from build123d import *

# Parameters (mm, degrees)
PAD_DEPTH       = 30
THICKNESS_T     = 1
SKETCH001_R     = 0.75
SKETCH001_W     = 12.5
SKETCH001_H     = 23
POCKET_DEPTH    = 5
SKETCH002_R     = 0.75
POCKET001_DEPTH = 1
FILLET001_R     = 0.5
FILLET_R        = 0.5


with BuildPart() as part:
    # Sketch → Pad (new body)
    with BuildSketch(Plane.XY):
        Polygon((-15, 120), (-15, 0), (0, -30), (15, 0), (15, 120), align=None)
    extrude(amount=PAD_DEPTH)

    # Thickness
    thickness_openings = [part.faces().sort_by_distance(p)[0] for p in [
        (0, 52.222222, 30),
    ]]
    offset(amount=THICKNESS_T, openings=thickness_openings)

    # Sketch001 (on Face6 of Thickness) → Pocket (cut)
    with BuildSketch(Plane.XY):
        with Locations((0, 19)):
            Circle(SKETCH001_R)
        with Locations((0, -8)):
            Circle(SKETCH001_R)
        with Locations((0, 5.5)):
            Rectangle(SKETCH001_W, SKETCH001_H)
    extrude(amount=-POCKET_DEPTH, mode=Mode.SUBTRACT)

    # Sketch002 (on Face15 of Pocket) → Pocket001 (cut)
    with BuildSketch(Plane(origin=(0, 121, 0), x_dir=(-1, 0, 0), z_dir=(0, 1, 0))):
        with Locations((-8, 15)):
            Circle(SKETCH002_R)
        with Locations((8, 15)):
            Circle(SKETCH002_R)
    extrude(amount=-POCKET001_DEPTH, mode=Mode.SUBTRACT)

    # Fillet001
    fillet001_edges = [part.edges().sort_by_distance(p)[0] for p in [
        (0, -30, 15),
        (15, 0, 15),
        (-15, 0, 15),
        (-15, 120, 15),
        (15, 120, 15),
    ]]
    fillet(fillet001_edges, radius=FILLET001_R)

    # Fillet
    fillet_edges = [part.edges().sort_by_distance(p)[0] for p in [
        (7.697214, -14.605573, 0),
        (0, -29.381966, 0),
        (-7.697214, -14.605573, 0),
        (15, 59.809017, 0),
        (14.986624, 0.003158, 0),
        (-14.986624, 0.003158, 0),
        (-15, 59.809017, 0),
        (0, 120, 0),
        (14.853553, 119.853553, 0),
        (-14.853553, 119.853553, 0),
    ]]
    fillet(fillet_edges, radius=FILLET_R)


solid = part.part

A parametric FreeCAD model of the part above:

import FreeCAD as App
import Part
import Sketcher
from FreeCAD import Vector


def edges_at(feature, points):
    """Names of the edges that pass closest to the given points."""
    edges = feature.Shape.Edges
    near = lambda p: min(range(len(edges)), key=lambda i: edges[i].distToShape(Part.Vertex(*p))[0])
    return sorted({f"Edge{near(p) + 1}" for p in points})


def faces_at(feature, points):
    """Names of the faces that lie closest to the given points."""
    faces = feature.Shape.Faces
    near = lambda p: min(range(len(faces)), key=lambda i: faces[i].distToShape(Part.Vertex(*p))[0])
    return sorted({f"Face{near(p) + 1}" for p in points})


def add_polygon(sketch, points):
    """Adds a closed chain of lines whose ends are joined by coincident constraints."""
    first, n = sketch.GeometryCount, len(points)
    for a, b in zip(points, points[1:] + points[:1]):
        sketch.addGeometry(Part.LineSegment(App.Vector(*a, 0), App.Vector(*b, 0)), False)
    for i in range(n):
        sketch.addConstraint(Sketcher.Constraint("Coincident", first + i, 2, first + (i + 1) % n, 1))

doc = App.newDocument("Part")
body = doc.addObject("PartDesign::Body", "Body")

# Sketch on XY plane
sketch1 = body.newObject("Sketcher::SketchObject", "Sketch")
sketch1.AttachmentSupport = (doc.getObject("XY_Plane"), [""])
sketch1.MapMode = "FlatFace"
add_polygon(sketch1, [(-15, 120), (-15, 0), (0, -30), (15, 0), (15, 120)])  # lines 0-4
sketch1.addConstraint(Sketcher.Constraint("Vertical", 0))
sketch1.addConstraint(Sketcher.Constraint("Vertical", 3))
sketch1.addConstraint(Sketcher.Constraint("Horizontal", 4))
sketch1.addConstraint(Sketcher.Constraint("Symmetric", 0, 2, 2, 2, -1, 1))
sketch1.addConstraint(Sketcher.Constraint("PointOnObject", 0, 2, -1))
sketch1.addConstraint(Sketcher.Constraint("PointOnObject", 1, 2, -2))
sketch1.addConstraint(Sketcher.Constraint("DistanceX", 4, 2, 4, 1, 30.0))
sketch1.addConstraint(Sketcher.Constraint("DistanceY", 0, 2, 0, 1, 120.0))
sketch1.addConstraint(Sketcher.Constraint("DistanceY", 1, 2, -1, 1, 30.0))
pad1 = body.newObject("PartDesign::Pad", "Pad")
pad1.Profile = sketch1
pad1.Length = 30
doc.recompute()

thickness = body.newObject("PartDesign::Thickness", "Thickness")
thickness.Base = (pad1, faces_at(pad1, [(0, 45, 30)]))
thickness.Value = 1
thickness.Reversed = False
thickness.Join = "Arc"

# Sketch on XY plane
sketch2 = body.newObject("Sketcher::SketchObject", "Sketch001")
sketch2.AttachmentSupport = (doc.getObject("XY_Plane"), [""])
sketch2.MapMode = "FlatFace"
sketch2.addGeometry(Part.Circle(Vector(0, 19, 0), Vector(0, 0, 1), 0.8), False)  # 0
sketch2.addGeometry(Part.Circle(Vector(0, -8, 0), Vector(0, 0, 1), 0.8), False)  # 1
add_polygon(sketch2, [(-6.2, 17), (-6.2, -6), (6.2, -6), (6.2, 17)])  # lines 2-5
sketch2.addConstraint(Sketcher.Constraint("Vertical", 2))
sketch2.addConstraint(Sketcher.Constraint("Horizontal", 3))
sketch2.addConstraint(Sketcher.Constraint("Vertical", 4))
sketch2.addConstraint(Sketcher.Constraint("Horizontal", 5))
sketch2.addConstraint(Sketcher.Constraint("Equal", 0, 1))
sketch2.addConstraint(Sketcher.Constraint("PointOnObject", 0, 3, -2))
sketch2.addConstraint(Sketcher.Constraint("PointOnObject", 1, 3, -2))
sketch2.addConstraint(Sketcher.Constraint("Diameter", 0, 1.5))
sketch2.addConstraint(Sketcher.Constraint("DistanceY", 2, 2, 2, 1, 23.0))
sketch2.addConstraint(Sketcher.Constraint("DistanceX", 3, 1, 3, 2, 12.5))
sketch2.addConstraint(Sketcher.Constraint("DistanceY", -1, 1, 0, 3, 19.0))
sketch2.addConstraint(Sketcher.Constraint("DistanceY", 1, 3, -1, 1, 8.0))
sketch2.addConstraint(Sketcher.Constraint("DistanceY", 2, 2, -1, 1, 6.0))
sketch2.addConstraint(Sketcher.Constraint("DistanceX", 2, 2, -1, 1, 6.25))
pocket1 = body.newObject("PartDesign::Pocket", "Pocket")
pocket1.Profile = sketch2
pocket1.Length = 5

# Sketch on XZ plane
sketch3 = body.newObject("Sketcher::SketchObject", "Sketch002")
sketch3.AttachmentSupport = (doc.getObject("XZ_Plane"), [""])
sketch3.MapMode = "FlatFace"
sketch3.AttachmentOffset = App.Placement(Vector(0, 0, -121), App.Rotation())
sketch3.addGeometry(Part.Circle(Vector(8, 15, 0), Vector(0, 0, 1), 0.8), False)
sketch3.addGeometry(Part.Circle(Vector(-8, 15, 0), Vector(0, 0, 1), 0.8), False)
sketch3.addConstraint(Sketcher.Constraint("Equal", 0, 1))
sketch3.addConstraint(Sketcher.Constraint("Symmetric", 0, 3, 1, 3, -2))
sketch3.addConstraint(Sketcher.Constraint("Diameter", 0, 1.5))
sketch3.addConstraint(Sketcher.Constraint("DistanceX", -1, 1, 0, 3, 8.0))
sketch3.addConstraint(Sketcher.Constraint("DistanceY", -1, 1, 0, 3, 15.0))
pocket2 = body.newObject("PartDesign::Pocket", "Pocket001")
pocket2.Profile = sketch3
pocket2.Length = 1
pocket2.Reversed = True
doc.recompute()

fillet = body.newObject("PartDesign::Fillet", "Fillet")
fillet.Base = (pocket2, edges_at(pocket2, [
    (0, -30, 15),
    (15, 0, 15),
    (-15, 0, 15),
    (-15, 120, 15),
    (15, 120, 15),
]))
fillet.Radius = 0.5
doc.recompute()

fillet2 = body.newObject("PartDesign::Fillet", "Fillet001")
fillet2.Base = (fillet, edges_at(fillet, [
    (7.697, -14.606, 0),
    (0, -29.382, 0),
    (-7.697, -14.606, 0),
    (15, 59.809, 0),
    (14.987, 0.003, 0),
    (-14.987, 0.003, 0),
    (-15, 59.809, 0),
    (0, 120, 0),
    (14.854, 119.854, 0),
    (-14.854, 119.854, 0),
]))
fillet2.Radius = 0.5

doc.recompute()
